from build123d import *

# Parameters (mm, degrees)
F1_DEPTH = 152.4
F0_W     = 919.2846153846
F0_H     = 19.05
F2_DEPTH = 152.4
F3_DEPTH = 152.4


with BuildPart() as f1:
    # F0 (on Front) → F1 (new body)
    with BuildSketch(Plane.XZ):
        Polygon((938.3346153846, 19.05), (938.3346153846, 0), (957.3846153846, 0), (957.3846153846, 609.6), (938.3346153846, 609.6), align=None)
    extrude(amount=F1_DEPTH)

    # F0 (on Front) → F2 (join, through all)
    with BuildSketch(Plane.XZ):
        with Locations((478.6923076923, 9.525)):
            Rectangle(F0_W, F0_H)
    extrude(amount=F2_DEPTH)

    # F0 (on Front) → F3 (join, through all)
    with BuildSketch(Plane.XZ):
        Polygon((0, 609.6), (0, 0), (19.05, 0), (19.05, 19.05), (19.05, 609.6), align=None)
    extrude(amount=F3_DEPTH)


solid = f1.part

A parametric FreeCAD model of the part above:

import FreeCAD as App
import Part
import Sketcher
from FreeCAD import Vector
Q = App.Units.Quantity

doc = App.newDocument("Part")
body = doc.addObject("PartDesign::Body", "Body")

sketch1 = body.newObject("Sketcher::SketchObject", "Sketch")
sketch1.AttachmentSupport = (doc.getObject("XZ_Plane"), [""])
sketch1.MapMode = "FlatFace"
sketch1.addGeometry(Part.LineSegment(Vector(938, 0, 0), Vector(957, 0, 0)), False)
sketch1.addGeometry(Part.LineSegment(Vector(957, 0, 0), Vector(957, 610, 0)), False)
sketch1.addGeometry(Part.LineSegment(Vector(957, 610, 0), Vector(938, 610, 0)), False)
sketch1.addGeometry(Part.LineSegment(Vector(938, 610, 0), Vector(938, 0, 0)), False)
sketch1.addConstraint(Sketcher.Constraint("Coincident", 0, 2, 1, 1))
sketch1.addConstraint(Sketcher.Constraint("Coincident", 1, 2, 2, 1))
sketch1.addConstraint(Sketcher.Constraint("Coincident", 2, 2, 3, 1))
sketch1.addConstraint(Sketcher.Constraint("Coincident", 3, 2, 0, 1))
sketch1.addConstraint(Sketcher.Constraint("Horizontal", 0))
sketch1.addConstraint(Sketcher.Constraint("Vertical", 1))
sketch1.addConstraint(Sketcher.Constraint("Horizontal", 2))
sketch1.addConstraint(Sketcher.Constraint("Vertical", 3))
sketch1.addConstraint(Sketcher.Constraint("PointOnObject", 0, 2, -1))
sketch1.addConstraint(Sketcher.Constraint("DistanceY", 1, 1, 1, 2, Q("24 in")))
sketch1.addConstraint(Sketcher.Constraint("DistanceX", 0, 1, 0, 2, Q("0.75 in")))
sketch1.addConstraint(Sketcher.Constraint("DistanceX", -1, 1, 0, 2, 957.384615))
pad1 = body.newObject("PartDesign::Pad", "Pad")
pad1.Profile = sketch1
pad1.Length = Q("6 in")

sketch2 = body.newObject("Sketcher::SketchObject", "Sketch001")
sketch2.AttachmentSupport = (doc.getObject("XZ_Plane"), [""])
sketch2.MapMode = "FlatFace"
sketch2.addGeometry(Part.LineSegment(Vector(19, 19, 0), Vector(19, 0, 0)), False)
sketch2.addGeometry(Part.LineSegment(Vector(19, 0, 0), Vector(938, 0, 0)), False)
sketch2.addGeometry(Part.LineSegment(Vector(938, 0, 0), Vector(938, 19, 0)), False)
sketch2.addGeometry(Part.LineSegment(Vector(938, 19, 0), Vector(19, 19, 0)), False)
sketch2.addConstraint(Sketcher.Constraint("Coincident", 0, 2, 1, 1))
sketch2.addConstraint(Sketcher.Constraint("Coincident", 1, 2, 2, 1))
sketch2.addConstraint(Sketcher.Constraint("Coincident", 2, 2, 3, 1))
sketch2.addConstraint(Sketcher.Constraint("Coincident", 3, 2, 0, 1))
sketch2.addConstraint(Sketcher.Constraint("Vertical", 0))
sketch2.addConstraint(Sketcher.Constraint("Horizontal", 1))
sketch2.addConstraint(Sketcher.Constraint("Vertical", 2))
sketch2.addConstraint(Sketcher.Constraint("Horizontal", 3))
sketch2.addConstraint(Sketcher.Constraint("PointOnObject", 0, 2, -1))
sketch2.addConstraint(Sketcher.Constraint("DistanceY", 0, 2, 0, 1, Q("0.75 in")))
sketch2.addConstraint(Sketcher.Constraint("DistanceX", -1, 1, 0, 2, Q("0.75 in")))
sketch2.addConstraint(Sketcher.Constraint("DistanceX", 1, 1, 1, 2, 919.284615))
pad2 = body.newObject("PartDesign::Pad", "Pad001")
pad2.Profile = sketch2
pad2.Length = Q("6 in")

sketch3 = body.newObject("Sketcher::SketchObject", "Sketch002")
sketch3.AttachmentSupport = (doc.getObject("XZ_Plane"), [""])
sketch3.MapMode = "FlatFace"
sketch3.addGeometry(Part.LineSegment(Vector(0, 610, 0), Vector(0, 0, 0)), False)
sketch3.addGeometry(Part.LineSegment(Vector(0, 0, 0), Vector(19, 0, 0)), False)
sketch3.addGeometry(Part.LineSegment(Vector(19, 0, 0), Vector(19, 610, 0)), False)
sketch3.addGeometry(Part.LineSegment(Vector(19, 610, 0), Vector(0, 610, 0)), False)
sketch3.addConstraint(Sketcher.Constraint("Coincident", 0, 2, 1, 1))
sketch3.addConstraint(Sketcher.Constraint("Coincident", 1, 2, 2, 1))
sketch3.addConstraint(Sketcher.Constraint("Coincident", 2, 2, 3, 1))
sketch3.addConstraint(Sketcher.Constraint("Coincident", 3, 2, 0, 1))
sketch3.addConstraint(Sketcher.Constraint("Vertical", 0))
sketch3.addConstraint(Sketcher.Constraint("Horizontal", 1))
sketch3.addConstraint(Sketcher.Constraint("Vertical", 2))
sketch3.addConstraint(Sketcher.Constraint("Horizontal", 3))
sketch3.addConstraint(Sketcher.Constraint("Coincident", 0, 2, -1, 1))
sketch3.addConstraint(Sketcher.Constraint("DistanceY", 0, 2, 0, 1, Q("24 in")))
sketch3.addConstraint(Sketcher.Constraint("DistanceX", 1, 1, 1, 2, Q("0.75 in")))
pad3 = body.newObject("PartDesign::Pad", "Pad002")
pad3.Profile = sketch3
pad3.Length = Q("6 in")

doc.recompute()
